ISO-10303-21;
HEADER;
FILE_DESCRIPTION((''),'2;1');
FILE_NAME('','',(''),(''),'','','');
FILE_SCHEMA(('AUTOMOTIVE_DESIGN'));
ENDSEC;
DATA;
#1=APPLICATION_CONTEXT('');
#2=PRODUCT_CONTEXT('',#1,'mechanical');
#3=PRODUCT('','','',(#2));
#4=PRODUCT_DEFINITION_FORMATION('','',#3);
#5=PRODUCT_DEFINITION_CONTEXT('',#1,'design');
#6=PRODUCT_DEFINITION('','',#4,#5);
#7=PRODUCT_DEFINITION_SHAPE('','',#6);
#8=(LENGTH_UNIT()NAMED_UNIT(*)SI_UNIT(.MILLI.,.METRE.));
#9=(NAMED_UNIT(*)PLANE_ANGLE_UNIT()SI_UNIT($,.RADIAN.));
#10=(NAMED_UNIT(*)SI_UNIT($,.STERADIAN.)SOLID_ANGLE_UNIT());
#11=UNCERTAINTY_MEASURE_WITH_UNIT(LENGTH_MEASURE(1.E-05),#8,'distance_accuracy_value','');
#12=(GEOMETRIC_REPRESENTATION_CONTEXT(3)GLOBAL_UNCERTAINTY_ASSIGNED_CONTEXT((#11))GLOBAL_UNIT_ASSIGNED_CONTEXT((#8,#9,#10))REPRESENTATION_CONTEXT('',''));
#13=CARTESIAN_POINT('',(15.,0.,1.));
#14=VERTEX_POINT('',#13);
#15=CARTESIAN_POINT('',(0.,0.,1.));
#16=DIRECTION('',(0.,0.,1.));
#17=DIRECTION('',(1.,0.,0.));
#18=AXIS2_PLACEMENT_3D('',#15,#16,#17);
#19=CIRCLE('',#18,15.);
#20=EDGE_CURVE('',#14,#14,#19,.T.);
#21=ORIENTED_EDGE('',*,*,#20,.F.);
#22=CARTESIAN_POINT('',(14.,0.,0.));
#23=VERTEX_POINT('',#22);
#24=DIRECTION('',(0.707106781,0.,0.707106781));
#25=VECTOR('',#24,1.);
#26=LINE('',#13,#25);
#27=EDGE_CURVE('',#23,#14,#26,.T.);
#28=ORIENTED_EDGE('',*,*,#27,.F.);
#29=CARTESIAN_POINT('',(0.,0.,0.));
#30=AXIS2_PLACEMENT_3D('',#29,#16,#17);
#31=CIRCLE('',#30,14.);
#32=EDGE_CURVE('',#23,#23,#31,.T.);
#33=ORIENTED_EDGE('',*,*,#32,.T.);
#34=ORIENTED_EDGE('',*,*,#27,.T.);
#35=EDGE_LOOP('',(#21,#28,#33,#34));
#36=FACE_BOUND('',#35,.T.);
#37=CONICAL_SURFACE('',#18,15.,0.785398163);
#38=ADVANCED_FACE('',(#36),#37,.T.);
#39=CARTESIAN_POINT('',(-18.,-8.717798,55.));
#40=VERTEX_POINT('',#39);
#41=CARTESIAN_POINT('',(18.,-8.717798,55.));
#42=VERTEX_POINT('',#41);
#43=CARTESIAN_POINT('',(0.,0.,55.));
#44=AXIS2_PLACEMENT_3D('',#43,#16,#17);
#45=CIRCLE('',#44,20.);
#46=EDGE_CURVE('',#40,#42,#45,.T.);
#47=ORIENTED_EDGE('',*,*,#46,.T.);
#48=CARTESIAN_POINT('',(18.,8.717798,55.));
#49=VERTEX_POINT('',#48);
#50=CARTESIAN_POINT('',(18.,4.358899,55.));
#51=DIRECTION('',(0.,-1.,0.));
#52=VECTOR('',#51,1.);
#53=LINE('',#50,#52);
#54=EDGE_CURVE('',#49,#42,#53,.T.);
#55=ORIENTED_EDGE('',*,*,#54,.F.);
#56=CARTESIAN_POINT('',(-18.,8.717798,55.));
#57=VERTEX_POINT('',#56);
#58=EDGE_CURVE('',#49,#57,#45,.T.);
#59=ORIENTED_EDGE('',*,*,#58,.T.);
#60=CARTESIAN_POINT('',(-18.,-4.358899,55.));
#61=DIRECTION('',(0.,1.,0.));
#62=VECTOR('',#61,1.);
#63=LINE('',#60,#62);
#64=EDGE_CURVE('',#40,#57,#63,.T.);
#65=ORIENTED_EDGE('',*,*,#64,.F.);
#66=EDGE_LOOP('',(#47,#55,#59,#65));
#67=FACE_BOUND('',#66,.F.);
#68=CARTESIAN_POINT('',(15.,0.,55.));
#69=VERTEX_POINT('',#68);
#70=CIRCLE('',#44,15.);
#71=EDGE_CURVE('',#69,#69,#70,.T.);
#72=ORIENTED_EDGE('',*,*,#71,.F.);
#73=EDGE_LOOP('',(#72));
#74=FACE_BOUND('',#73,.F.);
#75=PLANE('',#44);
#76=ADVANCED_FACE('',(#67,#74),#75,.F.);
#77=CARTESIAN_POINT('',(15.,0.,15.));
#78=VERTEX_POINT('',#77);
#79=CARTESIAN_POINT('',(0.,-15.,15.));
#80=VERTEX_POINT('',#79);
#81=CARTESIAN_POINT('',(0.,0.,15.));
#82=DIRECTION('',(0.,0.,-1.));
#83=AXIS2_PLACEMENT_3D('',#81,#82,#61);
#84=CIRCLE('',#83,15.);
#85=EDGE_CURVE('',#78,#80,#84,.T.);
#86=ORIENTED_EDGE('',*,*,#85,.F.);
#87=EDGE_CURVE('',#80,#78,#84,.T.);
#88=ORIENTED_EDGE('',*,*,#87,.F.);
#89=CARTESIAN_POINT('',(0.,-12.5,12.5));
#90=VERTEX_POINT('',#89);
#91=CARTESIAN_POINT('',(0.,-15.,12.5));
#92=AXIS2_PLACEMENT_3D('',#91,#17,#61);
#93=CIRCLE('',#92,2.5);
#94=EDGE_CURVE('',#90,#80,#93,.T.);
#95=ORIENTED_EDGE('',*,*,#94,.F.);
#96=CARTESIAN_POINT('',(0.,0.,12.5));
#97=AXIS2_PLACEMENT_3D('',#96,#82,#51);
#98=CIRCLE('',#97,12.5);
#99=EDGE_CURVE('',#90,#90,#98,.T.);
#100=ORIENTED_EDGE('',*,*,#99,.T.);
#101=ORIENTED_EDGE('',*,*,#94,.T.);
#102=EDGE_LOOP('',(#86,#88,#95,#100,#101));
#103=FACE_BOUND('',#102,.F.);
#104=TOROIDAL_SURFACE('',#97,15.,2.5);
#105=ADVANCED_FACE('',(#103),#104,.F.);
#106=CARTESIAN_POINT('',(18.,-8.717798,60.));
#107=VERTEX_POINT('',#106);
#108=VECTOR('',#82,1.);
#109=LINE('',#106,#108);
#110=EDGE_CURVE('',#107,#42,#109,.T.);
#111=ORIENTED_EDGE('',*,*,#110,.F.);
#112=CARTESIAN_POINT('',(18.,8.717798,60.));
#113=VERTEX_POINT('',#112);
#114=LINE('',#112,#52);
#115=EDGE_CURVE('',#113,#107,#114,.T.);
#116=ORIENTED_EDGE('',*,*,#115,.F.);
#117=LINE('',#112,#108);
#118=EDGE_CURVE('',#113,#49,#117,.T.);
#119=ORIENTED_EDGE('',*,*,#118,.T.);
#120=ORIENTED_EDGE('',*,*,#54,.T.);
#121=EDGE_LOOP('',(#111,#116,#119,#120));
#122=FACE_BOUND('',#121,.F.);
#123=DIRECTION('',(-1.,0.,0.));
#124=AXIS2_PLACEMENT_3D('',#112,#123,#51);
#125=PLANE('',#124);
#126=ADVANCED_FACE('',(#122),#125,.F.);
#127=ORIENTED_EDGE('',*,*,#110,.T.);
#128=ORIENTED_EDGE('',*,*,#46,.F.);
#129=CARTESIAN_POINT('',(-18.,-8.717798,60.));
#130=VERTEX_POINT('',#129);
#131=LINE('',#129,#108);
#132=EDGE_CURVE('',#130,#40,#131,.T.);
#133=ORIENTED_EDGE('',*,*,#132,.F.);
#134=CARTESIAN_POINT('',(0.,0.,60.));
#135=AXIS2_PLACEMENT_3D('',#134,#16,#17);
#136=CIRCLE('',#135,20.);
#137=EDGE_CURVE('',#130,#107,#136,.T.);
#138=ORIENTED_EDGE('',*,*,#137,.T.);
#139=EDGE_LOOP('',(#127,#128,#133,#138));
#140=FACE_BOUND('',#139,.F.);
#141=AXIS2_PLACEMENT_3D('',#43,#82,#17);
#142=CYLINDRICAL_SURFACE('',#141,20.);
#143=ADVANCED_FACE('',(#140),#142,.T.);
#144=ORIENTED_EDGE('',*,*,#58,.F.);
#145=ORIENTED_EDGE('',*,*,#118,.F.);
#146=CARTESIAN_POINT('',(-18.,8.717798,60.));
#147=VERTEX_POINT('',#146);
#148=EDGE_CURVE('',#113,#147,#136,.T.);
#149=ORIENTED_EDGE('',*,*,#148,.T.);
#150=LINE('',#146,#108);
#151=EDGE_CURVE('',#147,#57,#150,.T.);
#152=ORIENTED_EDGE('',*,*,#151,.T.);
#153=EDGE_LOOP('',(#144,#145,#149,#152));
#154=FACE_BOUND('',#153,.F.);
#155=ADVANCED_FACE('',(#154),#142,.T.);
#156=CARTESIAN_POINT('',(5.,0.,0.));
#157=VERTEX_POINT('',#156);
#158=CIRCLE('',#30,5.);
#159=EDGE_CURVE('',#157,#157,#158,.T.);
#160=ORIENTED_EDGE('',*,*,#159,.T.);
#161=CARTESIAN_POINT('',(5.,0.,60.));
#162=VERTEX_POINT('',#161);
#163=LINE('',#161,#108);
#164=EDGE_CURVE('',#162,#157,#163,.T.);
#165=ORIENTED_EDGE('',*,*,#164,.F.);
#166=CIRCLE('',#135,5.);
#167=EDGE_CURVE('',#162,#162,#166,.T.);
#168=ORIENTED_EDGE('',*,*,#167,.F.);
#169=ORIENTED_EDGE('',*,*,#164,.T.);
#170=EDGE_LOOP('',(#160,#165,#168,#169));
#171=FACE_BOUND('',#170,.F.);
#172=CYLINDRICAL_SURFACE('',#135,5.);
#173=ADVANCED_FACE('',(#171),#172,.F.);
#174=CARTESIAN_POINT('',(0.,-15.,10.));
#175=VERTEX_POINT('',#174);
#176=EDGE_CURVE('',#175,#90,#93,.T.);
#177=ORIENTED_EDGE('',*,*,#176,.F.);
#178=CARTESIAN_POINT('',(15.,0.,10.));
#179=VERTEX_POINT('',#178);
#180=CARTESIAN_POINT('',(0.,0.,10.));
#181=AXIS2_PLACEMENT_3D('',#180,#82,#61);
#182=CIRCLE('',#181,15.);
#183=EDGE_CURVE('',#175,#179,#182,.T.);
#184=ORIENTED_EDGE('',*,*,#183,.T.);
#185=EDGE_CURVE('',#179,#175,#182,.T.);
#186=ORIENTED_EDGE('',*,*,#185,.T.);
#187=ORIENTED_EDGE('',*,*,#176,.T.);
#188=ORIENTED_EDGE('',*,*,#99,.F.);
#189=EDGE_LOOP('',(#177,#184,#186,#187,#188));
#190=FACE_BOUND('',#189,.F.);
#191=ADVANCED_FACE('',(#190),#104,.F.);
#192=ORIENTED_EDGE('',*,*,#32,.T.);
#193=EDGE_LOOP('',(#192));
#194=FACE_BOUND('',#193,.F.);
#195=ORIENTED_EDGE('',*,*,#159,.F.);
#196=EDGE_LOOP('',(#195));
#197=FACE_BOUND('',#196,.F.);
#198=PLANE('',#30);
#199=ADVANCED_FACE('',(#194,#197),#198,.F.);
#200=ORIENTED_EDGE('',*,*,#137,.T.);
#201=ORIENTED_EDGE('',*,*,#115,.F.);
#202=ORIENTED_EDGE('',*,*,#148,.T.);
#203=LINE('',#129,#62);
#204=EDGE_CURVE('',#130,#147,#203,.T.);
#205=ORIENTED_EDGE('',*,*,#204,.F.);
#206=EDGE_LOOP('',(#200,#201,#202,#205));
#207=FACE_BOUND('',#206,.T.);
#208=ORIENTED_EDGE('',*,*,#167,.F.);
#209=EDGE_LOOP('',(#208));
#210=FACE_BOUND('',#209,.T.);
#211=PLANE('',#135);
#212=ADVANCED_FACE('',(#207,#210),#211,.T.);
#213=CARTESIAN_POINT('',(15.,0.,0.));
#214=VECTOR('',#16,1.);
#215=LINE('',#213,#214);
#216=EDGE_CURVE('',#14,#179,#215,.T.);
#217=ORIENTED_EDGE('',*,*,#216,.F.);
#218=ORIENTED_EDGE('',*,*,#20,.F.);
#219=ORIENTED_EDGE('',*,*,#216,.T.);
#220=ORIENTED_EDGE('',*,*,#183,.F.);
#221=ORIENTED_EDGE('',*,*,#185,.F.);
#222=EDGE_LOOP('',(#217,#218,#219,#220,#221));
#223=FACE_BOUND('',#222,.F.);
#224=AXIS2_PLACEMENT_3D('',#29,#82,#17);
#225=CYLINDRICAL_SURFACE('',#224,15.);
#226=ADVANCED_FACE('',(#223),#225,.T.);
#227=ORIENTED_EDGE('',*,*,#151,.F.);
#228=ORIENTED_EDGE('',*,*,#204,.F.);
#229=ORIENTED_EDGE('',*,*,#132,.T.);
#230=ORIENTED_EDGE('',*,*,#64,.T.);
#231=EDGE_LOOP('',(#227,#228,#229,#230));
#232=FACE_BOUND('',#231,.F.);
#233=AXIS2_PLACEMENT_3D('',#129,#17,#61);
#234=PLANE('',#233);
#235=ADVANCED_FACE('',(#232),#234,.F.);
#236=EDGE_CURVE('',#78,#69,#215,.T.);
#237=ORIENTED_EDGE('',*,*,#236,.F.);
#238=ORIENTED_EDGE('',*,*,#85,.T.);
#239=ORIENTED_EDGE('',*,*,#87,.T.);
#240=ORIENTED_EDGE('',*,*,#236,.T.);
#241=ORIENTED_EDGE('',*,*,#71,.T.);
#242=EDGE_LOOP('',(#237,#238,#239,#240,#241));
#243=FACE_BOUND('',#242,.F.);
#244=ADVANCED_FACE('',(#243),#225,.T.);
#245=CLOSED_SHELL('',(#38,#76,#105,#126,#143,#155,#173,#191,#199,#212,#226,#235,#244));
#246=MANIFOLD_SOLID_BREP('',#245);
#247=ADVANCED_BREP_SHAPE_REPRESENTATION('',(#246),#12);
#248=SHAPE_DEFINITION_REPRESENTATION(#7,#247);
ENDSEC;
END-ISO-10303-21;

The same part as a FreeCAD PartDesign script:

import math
import FreeCAD as App
import Part
import Sketcher

V = App.Vector


def edges_at(feature, points):
    """Names of the edges that pass closest to the given points."""
    edges = feature.Shape.Edges
    near = lambda p: min(range(len(edges)), key=lambda i: edges[i].distToShape(Part.Vertex(*p))[0])
    return sorted({f"Edge{near(p) + 1}" for p in points})

doc = App.newDocument("Part")
body = doc.addObject("PartDesign::Body", "Body")

sketch1 = body.newObject("Sketcher::SketchObject", "Sketch")
sketch1.AttachmentSupport = (doc.getObject("XY_Plane"), [""])
sketch1.MapMode = "FlatFace"
sketch1.addGeometry(Part.Circle(V(0, 0, 0), V(0, 0, 1), 15), False)
sketch1.addConstraint([
    Sketcher.Constraint("Coincident", 0, 3, -1, 1),
    Sketcher.Constraint("Diameter", 0, 30.0),
])
pad1 = body.newObject("PartDesign::Pad", "Pad")
pad1.Profile = sketch1
pad1.Length = 55

sketch2 = body.newObject("Sketcher::SketchObject", "Sketch001")
sketch2.AttachmentSupport = (doc.getObject("XY_Plane"), [""])
sketch2.MapMode = "FlatFace"
sketch2.AttachmentOffset = App.Placement(V(0, 0, 55), App.Rotation())
sketch2.addGeometry(Part.Circle(V(0, 0, 0), V(0, 0, 1), 20), False)
sketch2.addConstraint([
    Sketcher.Constraint("Coincident", 0, 3, -1, 1),
    Sketcher.Constraint("Diameter", 0, 40.0),
])
pad2 = body.newObject("PartDesign::Pad", "Pad001")
pad2.Profile = sketch2
pad2.Length = 5

sketch3 = body.newObject("Sketcher::SketchObject", "Sketch002")
sketch3.AttachmentSupport = (doc.getObject("XY_Plane"), [""])
sketch3.MapMode = "FlatFace"
sketch3.AttachmentOffset = App.Placement(V(0, 0, 60), App.Rotation())
sketch3.addGeometry(Part.Circle(V(0, 0, 0), V(0, 0, 1), 5), False)
sketch3.addConstraint([
    Sketcher.Constraint("Coincident", 0, 3, -1, 1),
    Sketcher.Constraint("Diameter", 0, 10.0),
])
pocket1 = body.newObject("PartDesign::Pocket", "Pocket")
pocket1.Profile = sketch3
pocket1.Type = "ThroughAll"

sketch4 = body.newObject("Sketcher::SketchObject", "Sketch003")
sketch4.AttachmentSupport = (doc.getObject("XY_Plane"), [""])
sketch4.MapMode = "FlatFace"
sketch4.AttachmentOffset = App.Placement(V(0, 0, 60), App.Rotation())
sketch4.addGeometry([
    Part.LineSegment(V(-18, -9, 0), V(-18, 9, 0)),
    Part.ArcOfCircle(Part.Circle(V(0, 0, 0), V(0, 0, 1), 20), math.radians(154), math.radians(206)),
    Part.LineSegment(V(18, 9, 0), V(18, -9, 0)),
    Part.ArcOfCircle(Part.Circle(V(0, 0, 0), V(0, 0, 1), 20), math.radians(-26), math.radians(0)),
    Part.ArcOfCircle(Part.Circle(V(0, 0, 0), V(0, 0, 1), 20), math.radians(0), math.radians(26)),
], False)
sketch4.addConstraint([
    Sketcher.Constraint("Coincident", 0, 1, 1, 2),
    Sketcher.Constraint("Coincident", 1, 1, 0, 2),
    Sketcher.Constraint("Coincident", 2, 2, 3, 1),
    Sketcher.Constraint("Tangent", 3, 2, 4, 1),
    Sketcher.Constraint("Coincident", 4, 2, 2, 1),
    Sketcher.Constraint("Vertical", 0),
    Sketcher.Constraint("Vertical", 2),
    Sketcher.Constraint("Coincident", 1, 3, -1, 1),
    Sketcher.Constraint("Coincident", 3, 3, -1, 1),
    Sketcher.Constraint("Equal", 1, 3),
    Sketcher.Constraint("Equal", 3, 4),
    Sketcher.Constraint("PointOnObject", 3, 2, -1),
    Sketcher.Constraint("Horizontal", 0, 1, 2, 2),
    Sketcher.Constraint("Radius", 1, 20.0),
    Sketcher.Constraint("DistanceX", 0, 1, -1, 1, 18.0),
])
pocket2 = body.newObject("PartDesign::Pocket", "Pocket001")
pocket2.Profile = sketch4
pocket2.Type = "ThroughAll"

sketch5 = body.newObject("Sketcher::SketchObject", "Sketch004")
sketch5.AttachmentSupport = (doc.getObject("YZ_Plane"), [""])
sketch5.MapMode = "FlatFace"
sketch5.addGeometry(Part.Circle(V(-15, 12.5, 0), V(0, 0, 1), 2.5), False)
sketch5.addConstraint([
    Sketcher.Constraint("Diameter", 0, 5.0),
    Sketcher.Constraint("DistanceX", 0, 3, -1, 1, 15.0),
    Sketcher.Constraint("DistanceY", -1, 1, 0, 3, 12.5),
])
groove = body.newObject("PartDesign::Groove", "Groove")
groove.Profile = sketch5
groove.ReferenceAxis = (sketch5, ["V_Axis"])
groove.Angle = 360
doc.recompute()

chamfer = body.newObject("PartDesign::Chamfer", "Chamfer")
chamfer.Base = (groove, edges_at(groove, [(-15, 0, 0)]))
chamfer.Size = 1

doc.recompute()
